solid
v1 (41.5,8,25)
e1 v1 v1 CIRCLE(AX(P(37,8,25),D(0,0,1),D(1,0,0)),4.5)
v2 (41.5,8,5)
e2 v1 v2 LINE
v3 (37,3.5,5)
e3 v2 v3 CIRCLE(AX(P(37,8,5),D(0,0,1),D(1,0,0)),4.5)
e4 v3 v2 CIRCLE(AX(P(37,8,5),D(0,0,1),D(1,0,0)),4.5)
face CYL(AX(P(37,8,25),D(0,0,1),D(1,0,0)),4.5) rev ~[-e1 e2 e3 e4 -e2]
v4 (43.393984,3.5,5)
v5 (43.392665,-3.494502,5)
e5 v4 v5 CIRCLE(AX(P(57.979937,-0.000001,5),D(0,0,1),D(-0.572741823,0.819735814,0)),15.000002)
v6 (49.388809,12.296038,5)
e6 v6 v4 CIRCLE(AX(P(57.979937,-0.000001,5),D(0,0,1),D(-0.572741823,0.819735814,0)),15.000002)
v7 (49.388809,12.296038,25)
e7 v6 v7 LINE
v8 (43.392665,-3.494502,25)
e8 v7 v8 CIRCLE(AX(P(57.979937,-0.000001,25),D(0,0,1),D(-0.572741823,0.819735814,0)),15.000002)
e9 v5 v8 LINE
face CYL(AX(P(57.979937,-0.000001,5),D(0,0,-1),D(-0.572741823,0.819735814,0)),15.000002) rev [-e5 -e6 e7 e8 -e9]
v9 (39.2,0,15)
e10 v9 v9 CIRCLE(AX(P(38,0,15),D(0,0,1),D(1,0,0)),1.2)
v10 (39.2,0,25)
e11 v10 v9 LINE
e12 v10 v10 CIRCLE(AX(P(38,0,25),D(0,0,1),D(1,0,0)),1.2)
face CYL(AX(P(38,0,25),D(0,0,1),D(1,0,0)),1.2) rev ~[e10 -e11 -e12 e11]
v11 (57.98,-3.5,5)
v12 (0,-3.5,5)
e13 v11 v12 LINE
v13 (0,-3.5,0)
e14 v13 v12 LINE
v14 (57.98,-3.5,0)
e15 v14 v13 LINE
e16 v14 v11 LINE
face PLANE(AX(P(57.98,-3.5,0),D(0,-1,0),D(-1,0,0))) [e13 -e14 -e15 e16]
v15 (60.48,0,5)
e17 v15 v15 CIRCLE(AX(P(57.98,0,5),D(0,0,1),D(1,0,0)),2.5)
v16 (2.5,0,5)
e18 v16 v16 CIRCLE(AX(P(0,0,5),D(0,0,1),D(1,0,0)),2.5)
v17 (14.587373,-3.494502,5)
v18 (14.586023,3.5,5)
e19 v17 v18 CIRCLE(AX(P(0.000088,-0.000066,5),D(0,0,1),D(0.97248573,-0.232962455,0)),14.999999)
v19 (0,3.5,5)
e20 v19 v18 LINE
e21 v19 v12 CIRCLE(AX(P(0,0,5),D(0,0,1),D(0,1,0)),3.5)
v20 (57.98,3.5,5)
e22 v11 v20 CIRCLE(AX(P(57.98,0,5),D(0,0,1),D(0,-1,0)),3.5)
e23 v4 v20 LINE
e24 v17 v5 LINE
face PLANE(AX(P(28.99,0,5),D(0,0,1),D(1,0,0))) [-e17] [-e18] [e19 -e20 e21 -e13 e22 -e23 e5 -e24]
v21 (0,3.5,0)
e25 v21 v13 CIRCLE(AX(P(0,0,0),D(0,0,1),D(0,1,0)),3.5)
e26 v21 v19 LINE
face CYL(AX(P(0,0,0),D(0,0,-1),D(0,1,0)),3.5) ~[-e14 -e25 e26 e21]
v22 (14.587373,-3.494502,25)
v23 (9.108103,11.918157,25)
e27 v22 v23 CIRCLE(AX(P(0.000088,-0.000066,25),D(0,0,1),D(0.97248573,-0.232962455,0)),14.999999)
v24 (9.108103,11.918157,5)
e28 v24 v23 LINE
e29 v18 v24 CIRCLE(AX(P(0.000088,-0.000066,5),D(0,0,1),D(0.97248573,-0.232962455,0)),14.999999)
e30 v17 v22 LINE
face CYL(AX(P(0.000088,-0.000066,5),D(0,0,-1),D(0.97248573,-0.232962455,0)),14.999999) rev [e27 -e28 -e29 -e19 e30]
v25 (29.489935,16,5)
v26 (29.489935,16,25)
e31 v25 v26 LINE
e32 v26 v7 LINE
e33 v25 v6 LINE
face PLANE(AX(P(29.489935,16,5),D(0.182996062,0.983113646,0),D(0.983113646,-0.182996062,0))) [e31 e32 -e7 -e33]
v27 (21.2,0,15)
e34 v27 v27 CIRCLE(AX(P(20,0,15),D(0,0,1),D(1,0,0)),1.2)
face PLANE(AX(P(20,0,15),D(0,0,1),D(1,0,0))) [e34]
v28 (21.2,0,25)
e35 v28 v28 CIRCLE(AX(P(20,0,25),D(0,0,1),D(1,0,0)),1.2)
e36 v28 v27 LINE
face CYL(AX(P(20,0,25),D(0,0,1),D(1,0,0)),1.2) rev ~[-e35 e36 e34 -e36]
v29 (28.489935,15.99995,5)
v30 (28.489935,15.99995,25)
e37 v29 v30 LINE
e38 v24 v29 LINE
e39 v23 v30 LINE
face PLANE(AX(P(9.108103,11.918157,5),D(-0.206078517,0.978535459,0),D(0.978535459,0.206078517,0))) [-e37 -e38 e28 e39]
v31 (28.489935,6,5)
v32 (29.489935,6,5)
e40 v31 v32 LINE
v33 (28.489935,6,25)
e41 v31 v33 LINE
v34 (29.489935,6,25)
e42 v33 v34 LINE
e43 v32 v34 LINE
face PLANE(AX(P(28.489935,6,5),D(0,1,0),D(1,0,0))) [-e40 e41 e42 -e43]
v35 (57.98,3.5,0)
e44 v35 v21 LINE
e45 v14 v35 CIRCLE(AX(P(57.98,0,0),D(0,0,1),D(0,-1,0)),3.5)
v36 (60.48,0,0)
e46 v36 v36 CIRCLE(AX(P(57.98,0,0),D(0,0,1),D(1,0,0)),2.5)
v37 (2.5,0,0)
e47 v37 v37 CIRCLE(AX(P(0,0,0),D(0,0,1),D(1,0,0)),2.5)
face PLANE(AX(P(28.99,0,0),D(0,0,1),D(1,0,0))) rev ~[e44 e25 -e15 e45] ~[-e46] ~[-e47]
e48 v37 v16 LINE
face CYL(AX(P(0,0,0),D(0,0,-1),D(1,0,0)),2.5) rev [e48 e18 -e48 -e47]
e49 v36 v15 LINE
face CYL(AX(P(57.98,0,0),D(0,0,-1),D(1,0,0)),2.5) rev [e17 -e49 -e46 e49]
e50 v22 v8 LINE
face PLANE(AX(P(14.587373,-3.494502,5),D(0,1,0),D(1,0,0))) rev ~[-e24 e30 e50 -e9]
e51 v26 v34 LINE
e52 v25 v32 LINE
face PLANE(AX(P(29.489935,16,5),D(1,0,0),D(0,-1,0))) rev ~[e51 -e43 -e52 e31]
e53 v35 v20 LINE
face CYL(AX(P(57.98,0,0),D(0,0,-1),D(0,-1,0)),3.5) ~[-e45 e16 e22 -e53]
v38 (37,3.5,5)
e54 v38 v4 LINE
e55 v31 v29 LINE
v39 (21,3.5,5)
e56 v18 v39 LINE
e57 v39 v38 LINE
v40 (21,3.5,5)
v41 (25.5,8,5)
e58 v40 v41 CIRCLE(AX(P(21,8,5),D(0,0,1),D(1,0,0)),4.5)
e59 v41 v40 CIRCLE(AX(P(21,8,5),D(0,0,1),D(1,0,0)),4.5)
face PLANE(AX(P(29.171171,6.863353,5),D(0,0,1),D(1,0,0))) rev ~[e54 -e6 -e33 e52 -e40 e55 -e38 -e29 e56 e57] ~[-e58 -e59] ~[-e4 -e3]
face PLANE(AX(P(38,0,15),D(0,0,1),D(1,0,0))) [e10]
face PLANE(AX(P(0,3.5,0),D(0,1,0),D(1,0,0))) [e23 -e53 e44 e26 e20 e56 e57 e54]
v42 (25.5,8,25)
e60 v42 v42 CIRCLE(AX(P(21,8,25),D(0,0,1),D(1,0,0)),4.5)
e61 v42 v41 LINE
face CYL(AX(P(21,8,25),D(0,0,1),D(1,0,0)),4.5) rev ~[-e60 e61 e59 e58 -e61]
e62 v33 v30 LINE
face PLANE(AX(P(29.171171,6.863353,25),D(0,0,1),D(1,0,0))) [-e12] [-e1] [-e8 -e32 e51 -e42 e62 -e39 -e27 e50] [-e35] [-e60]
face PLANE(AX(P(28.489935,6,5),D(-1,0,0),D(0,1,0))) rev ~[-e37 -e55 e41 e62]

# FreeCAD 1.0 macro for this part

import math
import FreeCAD as App
import Part
import Sketcher

V = App.Vector
Q = App.Units.Quantity

doc = App.newDocument("Part")
params = doc.addObject("Spreadsheet::Sheet", "Params")
for row, (alias, value) in enumerate([
    ("sketch1_diameter", "5 mm"),
    ("sketch1_radius", "3.5 mm"),
    ("sketch1_width", "57.98 mm"),
    ("pad1_length", "5 mm"),
    ("sketch2_radius", "14.999999 mm"),
    ("sketch2_radius2", "15.000002 mm"),
    ("sketch2_width", "1 mm"),
    ("sketch2_height", "10 mm"),
    ("pad2_length", "20 mm"),
    ("sketch3_diameter", "2.4 mm"),
    ("pocket1_length", "10 mm"),
    ("sketch4_diameter", "9 mm"),
], start=1):
    params.set(f"A{row}", alias)
    params.set(f"B{row}", "=" + value)
    params.setAlias(f"B{row}", alias)

body = doc.addObject("PartDesign::Body", "Body")

sketch1 = doc.addObject("Sketcher::SketchObject", "Sketch")
body.addObject(sketch1)
sketch1.AttachmentSupport = (doc.XY_Plane, [""])
sketch1.MapMode = "FlatFace"
sketch1.addGeometry(Part.ArcOfCircle(Part.Circle(V(0, 0, 0), V(0, 0, 1), 3.5), math.radians(90), math.radians(270)), False)
sketch1.addGeometry(Part.LineSegment(V(0, -3.5, 0), V(57.98, -3.5, 0)), False)
sketch1.addGeometry(Part.ArcOfCircle(Part.Circle(V(57.98, 0, 0), V(0, 0, 1), 3.5), math.radians(-90), math.radians(90)), False)
sketch1.addGeometry(Part.LineSegment(V(57.98, 3.5, 0), V(0, 3.5, 0)), False)
sketch1.addGeometry(Part.Circle(V(0, 0, 0), V(0, 0, 1), 2.5), False)
sketch1.addGeometry(Part.Circle(V(57.98, 0, 0), V(0, 0, 1), 2.5), False)
sketch1.addConstraint(Sketcher.Constraint("Tangent", 0, 2, 1, 1))
sketch1.addConstraint(Sketcher.Constraint("Tangent", 1, 2, 2, 1))
sketch1.addConstraint(Sketcher.Constraint("Tangent", 2, 2, 3, 1))
sketch1.addConstraint(Sketcher.Constraint("Tangent", 3, 2, 0, 1))
sketch1.addConstraint(Sketcher.Constraint("Horizontal", 1))
sketch1.addConstraint(Sketcher.Constraint("Horizontal", 3))
sketch1.addConstraint(Sketcher.Constraint("Coincident", 0, 3, -1, 1))
sketch1.addConstraint(Sketcher.Constraint("Coincident", 4, 3, -1, 1))
sketch1.addConstraint(Sketcher.Constraint("Coincident", 5, 3, 2, 3))
sketch1.addConstraint(Sketcher.Constraint("Equal", 4, 5))
sketch1.addConstraint(Sketcher.Constraint("Diameter", 4, Q("5 mm")))
sketch1.addConstraint(Sketcher.Constraint("Radius", 0, Q("3.5 mm")))
sketch1.addConstraint(Sketcher.Constraint("DistanceX", 1, 1, 1, 2, Q("57.98 mm")))
sketch1.setExpression("Constraints[10]", "Params.sketch1_diameter")
sketch1.setExpression("Constraints[11]", "Params.sketch1_radius")
sketch1.setExpression("Constraints[12]", "Params.sketch1_width")
pad1 = doc.addObject("PartDesign::Pad", "Pad")
body.addObject(pad1)
pad1.Profile = sketch1
pad1.setExpression("Length", "Params.pad1_length")

sketch2 = doc.addObject("Sketcher::SketchObject", "Sketch001")
body.addObject(sketch2)
sketch2.AttachmentSupport = (doc.XY_Plane, [""])
sketch2.MapMode = "FlatFace"
sketch2.AttachmentOffset = App.Placement(V(0, 0, 5), App.Rotation())
sketch2.addGeometry(Part.LineSegment(V(29.489935, 16, 0), V(29.489935, 6, 0)), False)
sketch2.addGeometry(Part.LineSegment(V(29.489935, 6, 0), V(28.489935, 6, 0)), False)
sketch2.addGeometry(Part.LineSegment(V(28.489935, 6, 0), V(28.489935, 15.99995, 0)), False)
sketch2.addGeometry(Part.LineSegment(V(28.489935, 15.99995, 0), V(9.108103, 11.918157, 0)), False)
sketch2.addGeometry(Part.ArcOfCircle(Part.Circle(V(0.000088, -0.000066, 0), V(0, 0, 1), 14.999999), math.radians(-13.471547), math.radians(52.612607)), False)
sketch2.addGeometry(Part.LineSegment(V(14.587373, -3.494502, 0), V(43.392665, -3.494502, 0)), False)
sketch2.addGeometry(Part.ArcOfCircle(Part.Circle(V(57.979937, -0.000001, 0), V(0, 0, 1), 15.000002), math.radians(124.941644), math.radians(193.471798)), False)
sketch2.addGeometry(Part.LineSegment(V(49.388809, 12.296038, 0), V(29.489935, 16, 0)), False)
sketch2.addConstraint(Sketcher.Constraint("Coincident", 0, 2, 1, 1))
sketch2.addConstraint(Sketcher.Constraint("Coincident", 1, 2, 2, 1))
sketch2.addConstraint(Sketcher.Constraint("Coincident", 2, 2, 3, 1))
sketch2.addConstraint(Sketcher.Constraint("Coincident", 3, 2, 4, 2))
sketch2.addConstraint(Sketcher.Constraint("Coincident", 4, 1, 5, 1))
sketch2.addConstraint(Sketcher.Constraint("Coincident", 5, 2, 6, 2))
sketch2.addConstraint(Sketcher.Constraint("Coincident", 6, 1, 7, 1))
sketch2.addConstraint(Sketcher.Constraint("Coincident", 7, 2, 0, 1))
sketch2.addConstraint(Sketcher.Constraint("Vertical", 0))
sketch2.addConstraint(Sketcher.Constraint("Horizontal", 1))
sketch2.addConstraint(Sketcher.Constraint("Vertical", 2))
sketch2.addConstraint(Sketcher.Constraint("Horizontal", 5))
sketch2.addConstraint(Sketcher.Constraint("PointOnObject", 6, 3, -1))
sketch2.addConstraint(Sketcher.Constraint("Radius", 4, Q("14.999999 mm")))
sketch2.addConstraint(Sketcher.Constraint("Radius", 6, Q("15.000002 mm")))
sketch2.addConstraint(Sketcher.Constraint("DistanceX", 1, 2, 1, 1, Q("1 mm")))
sketch2.addConstraint(Sketcher.Constraint("DistanceY", 0, 2, 0, 1, Q("10 mm")))
sketch2.addConstraint(Sketcher.Constraint("DistanceY", -1, 1, 0, 2, Q("6 mm")))
sketch2.addConstraint(Sketcher.Constraint("DistanceY", 2, 1, 2, 2, Q("9.99995 mm")))
sketch2.addConstraint(Sketcher.Constraint("DistanceY", 4, 1, -1, 1, Q("3.494502 mm")))
sketch2.addConstraint(Sketcher.Constraint("Distance", 3, Q("19.80698 mm")))
sketch2.addConstraint(Sketcher.Constraint("DistanceX", 5, 1, 5, 2, Q("28.805292 mm")))
sketch2.addConstraint(Sketcher.Constraint("DistanceX", -1, 1, 6, 1, Q("49.388809 mm")))
sketch2.addConstraint(Sketcher.Constraint("DistanceY", -1, 1, 6, 1, Q("12.296038 mm")))
sketch2.addConstraint(Sketcher.Constraint("DistanceX", 4, 3, 6, 3, Q("57.979849 mm")))
sketch2.addConstraint(Sketcher.Constraint("DistanceX", 3, 2, 2, 2, Q("19.381832 mm")))
sketch2.setExpression("Constraints[13]", "Params.sketch2_radius")
sketch2.setExpression("Constraints[14]", "Params.sketch2_radius2")
sketch2.setExpression("Constraints[15]", "Params.sketch2_width")
sketch2.setExpression("Constraints[16]", "Params.sketch2_height")
pad2 = doc.addObject("PartDesign::Pad", "Pad001")
body.addObject(pad2)
pad2.Profile = sketch2
pad2.setExpression("Length", "Params.pad2_length")

sketch3 = doc.addObject("Sketcher::SketchObject", "Sketch002")
body.addObject(sketch3)
sketch3.AttachmentSupport = (doc.XY_Plane, [""])
sketch3.MapMode = "FlatFace"
sketch3.AttachmentOffset = App.Placement(V(0, 0, 25), App.Rotation())
sketch3.addGeometry(Part.Circle(V(20, 0, 0), V(0, 0, 1), 1.2), False)
sketch3.addGeometry(Part.Circle(V(38, 0, 0), V(0, 0, 1), 1.2), False)
sketch3.addConstraint(Sketcher.Constraint("Equal", 0, 1))
sketch3.addConstraint(Sketcher.Constraint("PointOnObject", 0, 3, -1))
sketch3.addConstraint(Sketcher.Constraint("PointOnObject", 1, 3, -1))
sketch3.addConstraint(Sketcher.Constraint("Diameter", 0, Q("2.4 mm")))
sketch3.addConstraint(Sketcher.Constraint("DistanceX", -1, 1, 0, 3, Q("20 mm")))
sketch3.addConstraint(Sketcher.Constraint("DistanceX", -1, 1, 1, 3, Q("38 mm")))
sketch3.setExpression("Constraints[3]", "Params.sketch3_diameter")
pocket1 = doc.addObject("PartDesign::Pocket", "Pocket")
body.addObject(pocket1)
pocket1.Profile = sketch3
pocket1.setExpression("Length", "Params.pocket1_length")

sketch4 = doc.addObject("Sketcher::SketchObject", "Sketch003")
body.addObject(sketch4)
sketch4.AttachmentSupport = (doc.XY_Plane, [""])
sketch4.MapMode = "FlatFace"
sketch4.AttachmentOffset = App.Placement(V(0, 0, 25), App.Rotation())
sketch4.addGeometry(Part.Circle(V(21, 8, 0), V(0, 0, 1), 4.5), False)
sketch4.addGeometry(Part.Circle(V(37, 8, 0), V(0, 0, 1), 4.5), False)
sketch4.addConstraint(Sketcher.Constraint("Equal", 0, 1))
sketch4.addConstraint(Sketcher.Constraint("Horizontal", 0, 3, 1, 3))
sketch4.addConstraint(Sketcher.Constraint("Diameter", 0, Q("9 mm")))
sketch4.addConstraint(Sketcher.Constraint("DistanceX", -1, 1, 0, 3, Q("21 mm")))
sketch4.addConstraint(Sketcher.Constraint("DistanceY", -1, 1, 0, 3, Q("8 mm")))
sketch4.addConstraint(Sketcher.Constraint("DistanceX", -1, 1, 1, 3, Q("37 mm")))
sketch4.setExpression("Constraints[2]", "Params.sketch4_diameter")
pocket2 = doc.addObject("PartDesign::Pocket", "Pocket001")
body.addObject(pocket2)
pocket2.Profile = sketch4
pocket2.Type = "ThroughAll"

doc.recompute()
